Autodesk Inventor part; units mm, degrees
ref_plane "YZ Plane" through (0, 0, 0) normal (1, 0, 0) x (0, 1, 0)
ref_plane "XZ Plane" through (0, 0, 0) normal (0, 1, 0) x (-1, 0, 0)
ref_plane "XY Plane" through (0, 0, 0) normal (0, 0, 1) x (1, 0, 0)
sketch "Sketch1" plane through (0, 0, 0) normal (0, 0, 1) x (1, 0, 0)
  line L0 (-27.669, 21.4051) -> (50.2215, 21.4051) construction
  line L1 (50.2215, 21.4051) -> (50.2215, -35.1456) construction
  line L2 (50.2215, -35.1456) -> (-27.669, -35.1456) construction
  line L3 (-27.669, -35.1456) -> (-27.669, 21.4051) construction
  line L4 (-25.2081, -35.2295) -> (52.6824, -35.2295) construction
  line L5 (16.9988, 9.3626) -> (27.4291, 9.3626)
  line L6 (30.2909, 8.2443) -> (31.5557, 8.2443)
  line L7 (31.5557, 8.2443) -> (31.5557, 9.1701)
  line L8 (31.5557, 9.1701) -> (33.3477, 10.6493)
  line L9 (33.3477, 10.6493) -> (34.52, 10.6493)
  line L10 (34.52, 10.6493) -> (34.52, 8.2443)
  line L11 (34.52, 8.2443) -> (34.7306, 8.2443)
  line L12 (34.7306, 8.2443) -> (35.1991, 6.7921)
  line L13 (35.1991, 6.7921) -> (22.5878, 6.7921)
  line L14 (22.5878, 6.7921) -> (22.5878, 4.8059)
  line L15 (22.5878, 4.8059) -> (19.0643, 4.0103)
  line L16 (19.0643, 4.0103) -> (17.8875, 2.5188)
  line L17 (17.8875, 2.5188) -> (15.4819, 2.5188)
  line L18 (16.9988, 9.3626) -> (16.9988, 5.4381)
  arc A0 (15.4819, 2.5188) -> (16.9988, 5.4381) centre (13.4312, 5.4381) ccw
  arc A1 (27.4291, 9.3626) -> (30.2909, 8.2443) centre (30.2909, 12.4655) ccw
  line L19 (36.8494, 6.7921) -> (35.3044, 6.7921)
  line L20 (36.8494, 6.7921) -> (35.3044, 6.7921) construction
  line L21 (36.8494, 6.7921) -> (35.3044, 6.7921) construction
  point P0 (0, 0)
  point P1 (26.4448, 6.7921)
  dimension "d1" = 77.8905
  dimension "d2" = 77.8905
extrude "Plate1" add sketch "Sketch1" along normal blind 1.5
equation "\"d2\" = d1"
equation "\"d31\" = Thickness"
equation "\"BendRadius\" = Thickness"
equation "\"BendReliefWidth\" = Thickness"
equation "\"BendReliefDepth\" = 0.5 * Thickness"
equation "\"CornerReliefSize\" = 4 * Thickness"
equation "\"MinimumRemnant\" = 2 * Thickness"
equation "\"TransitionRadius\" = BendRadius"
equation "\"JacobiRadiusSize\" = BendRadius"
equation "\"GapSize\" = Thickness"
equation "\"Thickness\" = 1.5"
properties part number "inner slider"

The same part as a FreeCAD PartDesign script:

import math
import FreeCAD as App
import Part
import Sketcher
from FreeCAD import Vector
Q = App.Units.Quantity

doc = App.newDocument("Part")
params = doc.addObject("Spreadsheet::Sheet", "Params")
for row, (alias, value) in enumerate([
    ("pad1_length", "1.5 mm"),
], start=1):
    params.set(f"A{row}", alias)
    params.set(f"B{row}", "=" + value)
    params.setAlias(f"B{row}", alias)

body = doc.addObject("PartDesign::Body", "Body")

# Sketch on XY plane
sketch1 = body.newObject("Sketcher::SketchObject", "Sketch")
sketch1.AttachmentSupport = (doc.getObject("XY_Plane"), [""])
sketch1.MapMode = "FlatFace"
sketch1.addGeometry([
    Part.LineSegment(Vector(27.4291, 9.3626, 0), Vector(16.9988, 9.3626, 0)),  # 0
    Part.LineSegment(Vector(16.9988, 9.3626, 0), Vector(16.9988, 5.4381, 0)),  # 1
    Part.ArcOfCircle(Part.Circle(Vector(13.4312, 5.4381, 0), Vector(0, 0, 1), 3.567588), math.radians(-54.913381), math.radians(0)),  # 2
    Part.LineSegment(Vector(15.4819, 2.5188, 0), Vector(17.8875, 2.5188, 0)),  # 3
    Part.LineSegment(Vector(17.8875, 2.5188, 0), Vector(19.0643, 4.0103, 0)),  # 4
    Part.LineSegment(Vector(19.0643, 4.0103, 0), Vector(22.5878, 4.8059, 0)),  # 5
    Part.LineSegment(Vector(22.5878, 4.8059, 0), Vector(22.5878, 6.7921, 0)),  # 6
    Part.LineSegment(Vector(22.5878, 6.7921, 0), Vector(35.1991, 6.7921, 0)),  # 7
    Part.LineSegment(Vector(35.1991, 6.7921, 0), Vector(34.7306, 8.2443, 0)),  # 8
    Part.LineSegment(Vector(34.7306, 8.2443, 0), Vector(34.52, 8.2443, 0)),  # 9
    Part.LineSegment(Vector(34.52, 8.2443, 0), Vector(34.52, 10.6493, 0)),  # 10
    Part.LineSegment(Vector(34.52, 10.6493, 0), Vector(33.3477, 10.6493, 0)),  # 11
    Part.LineSegment(Vector(33.3477, 10.6493, 0), Vector(31.5557, 9.1701, 0)),  # 12
    Part.LineSegment(Vector(31.5557, 9.1701, 0), Vector(31.5557, 8.2443, 0)),  # 13
    Part.LineSegment(Vector(31.5557, 8.2443, 0), Vector(30.2909, 8.2443, 0)),  # 14
    Part.ArcOfCircle(Part.Circle(Vector(30.2909, 12.4655, 0), Vector(0, 0, 1), 4.221124), math.radians(-132.685299), math.radians(-90)),  # 15
], False)
sketch1.addConstraint([
    Sketcher.Constraint("Coincident", 0, 2, 1, 1),
    Sketcher.Constraint("Tangent", 1, 2, 2, 2),
    Sketcher.Constraint("Coincident", 2, 1, 3, 1),
    Sketcher.Constraint("Coincident", 3, 2, 4, 1),
    Sketcher.Constraint("Coincident", 4, 2, 5, 1),
    Sketcher.Constraint("Coincident", 5, 2, 6, 1),
    Sketcher.Constraint("Coincident", 6, 2, 7, 1),
    Sketcher.Constraint("Coincident", 7, 2, 8, 1),
    Sketcher.Constraint("Coincident", 8, 2, 9, 1),
    Sketcher.Constraint("Coincident", 9, 2, 10, 1),
    Sketcher.Constraint("Coincident", 10, 2, 11, 1),
    Sketcher.Constraint("Coincident", 11, 2, 12, 1),
    Sketcher.Constraint("Coincident", 12, 2, 13, 1),
    Sketcher.Constraint("Coincident", 13, 2, 14, 1),
    Sketcher.Constraint("Tangent", 14, 2, 15, 2),
    Sketcher.Constraint("Coincident", 15, 1, 0, 1),
    Sketcher.Constraint("Horizontal", 0),
    Sketcher.Constraint("Vertical", 1),
    Sketcher.Constraint("Horizontal", 3),
    Sketcher.Constraint("Vertical", 6),
    Sketcher.Constraint("Horizontal", 7),
    Sketcher.Constraint("Horizontal", 9),
    Sketcher.Constraint("Vertical", 10),
    Sketcher.Constraint("Horizontal", 11),
    Sketcher.Constraint("Vertical", 13),
    Sketcher.Constraint("Horizontal", 14),
    Sketcher.Constraint("Horizontal", 9, 2, 13, 2),
    Sketcher.Constraint("Angle", 8, Q("107.8804 deg")),
    Sketcher.Constraint("Radius", 2, 3.5676),
    Sketcher.Constraint("Radius", 15, 4.2211),
    Sketcher.Constraint("DistanceY", 10, 1, 10, 2, 2.405),
    Sketcher.Constraint("DistanceX", -1, 1, 9, 2, 34.52),
    Sketcher.Constraint("DistanceY", -1, 1, 12, 2, 9.17),
    Sketcher.Constraint("Distance", 8, 1.526),
    Sketcher.Constraint("DistanceX", 0, 2, 0, 1, 10.4303),
    Sketcher.Constraint("DistanceX", 3, 1, 3, 2, 2.4056),
    Sketcher.Constraint("DistanceX", 7, 1, 7, 2, 12.6113),
    Sketcher.Constraint("DistanceX", 9, 2, 9, 1, 0.2106),
    Sketcher.Constraint("DistanceX", 11, 2, 11, 1, 1.1723),
    Sketcher.Constraint("DistanceX", 14, 2, 14, 1, 1.2648),
    Sketcher.Constraint("DistanceY", 1, 2, 1, 1, 3.9245),
    Sketcher.Constraint("DistanceY", 6, 1, 6, 2, 1.9862),
    Sketcher.Constraint("DistanceY", 13, 2, 13, 1, 0.9258),
    Sketcher.Constraint("DistanceY", -1, 1, 2, 3, 5.438),
    Sketcher.Constraint("DistanceX", -1, 1, 15, 3, 30.291),
    Sketcher.Constraint("DistanceX", -1, 1, 2, 1, 15.482),
    Sketcher.Constraint("DistanceX", 2, 3, 4, 2, 5.633),
    Sketcher.Constraint("DistanceY", 4, 2, 8, 2, 4.234),
])
pad1 = body.newObject("PartDesign::Pad", "Pad")
pad1.Profile = sketch1
pad1.setExpression("Length", "Params.pad1_length")

doc.recompute()
